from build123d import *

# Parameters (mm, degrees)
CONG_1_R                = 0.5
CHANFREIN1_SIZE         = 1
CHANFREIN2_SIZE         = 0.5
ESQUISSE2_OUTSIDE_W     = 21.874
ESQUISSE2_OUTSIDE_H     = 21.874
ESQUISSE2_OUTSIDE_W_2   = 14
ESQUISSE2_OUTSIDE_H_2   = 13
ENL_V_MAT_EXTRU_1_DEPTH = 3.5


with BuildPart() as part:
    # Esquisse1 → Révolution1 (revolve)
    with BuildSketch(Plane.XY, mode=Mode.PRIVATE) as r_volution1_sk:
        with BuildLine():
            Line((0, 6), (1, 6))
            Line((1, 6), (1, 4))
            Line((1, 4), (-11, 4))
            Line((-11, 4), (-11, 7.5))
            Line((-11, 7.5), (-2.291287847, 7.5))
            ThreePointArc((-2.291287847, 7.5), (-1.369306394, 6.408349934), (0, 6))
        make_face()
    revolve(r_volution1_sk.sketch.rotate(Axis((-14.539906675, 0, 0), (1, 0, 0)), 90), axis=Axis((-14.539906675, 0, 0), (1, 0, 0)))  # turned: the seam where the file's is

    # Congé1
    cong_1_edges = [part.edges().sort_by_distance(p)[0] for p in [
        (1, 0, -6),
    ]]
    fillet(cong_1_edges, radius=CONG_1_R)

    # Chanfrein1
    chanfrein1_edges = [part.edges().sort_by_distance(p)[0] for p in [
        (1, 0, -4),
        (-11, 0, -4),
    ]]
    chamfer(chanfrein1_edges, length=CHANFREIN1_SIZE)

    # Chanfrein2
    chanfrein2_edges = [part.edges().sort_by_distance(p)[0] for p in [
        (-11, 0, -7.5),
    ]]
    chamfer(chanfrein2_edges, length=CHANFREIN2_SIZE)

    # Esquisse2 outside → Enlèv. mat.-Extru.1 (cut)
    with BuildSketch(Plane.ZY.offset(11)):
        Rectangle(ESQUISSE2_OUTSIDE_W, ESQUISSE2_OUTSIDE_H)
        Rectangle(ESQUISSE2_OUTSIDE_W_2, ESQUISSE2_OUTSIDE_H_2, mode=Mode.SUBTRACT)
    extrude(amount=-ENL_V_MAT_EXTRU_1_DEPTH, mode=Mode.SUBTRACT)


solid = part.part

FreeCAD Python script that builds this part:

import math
import FreeCAD as App
import Part
import Sketcher

V = App.Vector


def edges_at(feature, points):
    """Names of the edges that pass closest to the given points."""
    edges = feature.Shape.Edges
    near = lambda p: min(range(len(edges)), key=lambda i: edges[i].distToShape(Part.Vertex(*p))[0])
    return sorted({f"Edge{near(p) + 1}" for p in points})

doc = App.newDocument("Part")
body = doc.addObject("PartDesign::Body", "Body")

# Sketch on XY plane
sketch1 = doc.addObject("Sketcher::SketchObject", "Sketch")
body.addObject(sketch1)
sketch1.AttachmentSupport = (doc.XY_Plane, [""])
sketch1.MapMode = "FlatFace"
sketch1.addGeometry([
    Part.LineSegment(V(1, 6, 0), V(0, 6, 0)),  # 0
    Part.ArcOfCircle(Part.Circle(V(0, 8.5, 0), V(0, 0, 1), 2.5), math.radians(-156.421822), math.radians(-90)),  # 1
    Part.LineSegment(V(-2.291288, 7.5, 0), V(-11, 7.5, 0)),  # 2
    Part.LineSegment(V(-11, 7.5, 0), V(-11, 4, 0)),  # 3
    Part.LineSegment(V(-11, 4, 0), V(1, 4, 0)),  # 4
    Part.LineSegment(V(1, 4, 0), V(1, 6, 0)),  # 5
], False)
sketch1.addConstraint([
    Sketcher.Constraint("Tangent", 0, 2, 1, 2),
    Sketcher.Constraint("Coincident", 1, 1, 2, 1),
    Sketcher.Constraint("Coincident", 2, 2, 3, 1),
    Sketcher.Constraint("Coincident", 3, 2, 4, 1),
    Sketcher.Constraint("Coincident", 4, 2, 5, 1),
    Sketcher.Constraint("Coincident", 5, 2, 0, 1),
    Sketcher.Constraint("Horizontal", 0),
    Sketcher.Constraint("Horizontal", 2),
    Sketcher.Constraint("Vertical", 3),
    Sketcher.Constraint("Horizontal", 4),
    Sketcher.Constraint("Vertical", 5),
    Sketcher.Constraint("PointOnObject", 1, 3, -2),
    Sketcher.Constraint("Radius", 1, 2.5),
    Sketcher.Constraint("DistanceX", 0, 2, 0, 1, 1.0),
    Sketcher.Constraint("DistanceX", 4, 1, 4, 2, 12.0),
    Sketcher.Constraint("DistanceY", 5, 1, 5, 2, 2.0),
    Sketcher.Constraint("DistanceY", 3, 2, 3, 1, 3.5),
    Sketcher.Constraint("DistanceY", -1, 1, 0, 2, 6.0),
])
revolution = doc.addObject("PartDesign::Revolution", "Revolution")
body.addObject(revolution)
revolution.Profile = sketch1
revolution.ReferenceAxis = (sketch1, ["H_Axis"])
revolution.Angle = 360
doc.recompute()

fillet = doc.addObject("PartDesign::Fillet", "Fillet")
body.addObject(fillet)
fillet.Base = (revolution, edges_at(revolution, [(1, 0, -6)]))
fillet.Radius = 0.5
doc.recompute()

chamfer = doc.addObject("PartDesign::Chamfer", "Chamfer")
body.addObject(chamfer)
chamfer.Base = (fillet, edges_at(fillet, [(1, 0, -4), (-11, 0, -4)]))
chamfer.Size = 1
doc.recompute()

chamfer2 = doc.addObject("PartDesign::Chamfer", "Chamfer001")
body.addObject(chamfer2)
chamfer2.Base = (chamfer, edges_at(chamfer, [(-11, 0, -7.5)]))
chamfer2.Size = 0.5

# Sketch on YZ plane
sketch2 = doc.addObject("Sketcher::SketchObject", "Sketch001")
body.addObject(sketch2)
sketch2.AttachmentSupport = (doc.YZ_Plane, [""])
sketch2.MapMode = "FlatFace"
sketch2.AttachmentOffset = App.Placement(V(0, 0, -11), App.Rotation())
sketch2.addGeometry([
    Part.LineSegment(V(10.937, -10.937, 0), V(-10.937, -10.937, 0)),  # 0
    Part.LineSegment(V(-10.937, -10.937, 0), V(-10.937, 10.937, 0)),  # 1
    Part.LineSegment(V(-10.937, 10.937, 0), V(10.937, 10.937, 0)),  # 2
    Part.LineSegment(V(10.937, 10.937, 0), V(10.937, -10.937, 0)),  # 3
    Part.LineSegment(V(-6.5, 7, 0), V(-6.5, -7, 0)),  # 4
    Part.LineSegment(V(-6.5, -7, 0), V(6.5, -7, 0)),  # 5
    Part.LineSegment(V(6.5, -7, 0), V(6.5, 7, 0)),  # 6
    Part.LineSegment(V(6.5, 7, 0), V(-6.5, 7, 0)),  # 7
], False)
sketch2.addConstraint([
    Sketcher.Constraint("Coincident", 0, 2, 1, 1),
    Sketcher.Constraint("Coincident", 1, 2, 2, 1),
    Sketcher.Constraint("Coincident", 2, 2, 3, 1),
    Sketcher.Constraint("Coincident", 3, 2, 0, 1),
    Sketcher.Constraint("Coincident", 4, 2, 5, 1),
    Sketcher.Constraint("Coincident", 5, 2, 6, 1),
    Sketcher.Constraint("Coincident", 6, 2, 7, 1),
    Sketcher.Constraint("Coincident", 7, 2, 4, 1),
    Sketcher.Constraint("Horizontal", 0),
    Sketcher.Constraint("Vertical", 1),
    Sketcher.Constraint("Horizontal", 2),
    Sketcher.Constraint("Vertical", 3),
    Sketcher.Constraint("Vertical", 4),
    Sketcher.Constraint("Horizontal", 5),
    Sketcher.Constraint("Vertical", 6),
    Sketcher.Constraint("Horizontal", 7),
    Sketcher.Constraint("Symmetric", 0, 2, 2, 2, -1, 1),
    Sketcher.Constraint("Symmetric", 4, 2, 6, 2, -1, 1),
    Sketcher.Constraint("Equal", 2, 1),
    Sketcher.Constraint("DistanceX", 5, 1, 5, 2, 13.0),
    Sketcher.Constraint("DistanceY", 4, 2, 4, 1, 14.0),
    Sketcher.Constraint("DistanceX", 0, 2, 0, 1, 21.874),
])
pocket1 = doc.addObject("PartDesign::Pocket", "Pocket")
body.addObject(pocket1)
pocket1.Profile = sketch2
pocket1.Length = 3.5
pocket1.Reversed = True

doc.recompute()
